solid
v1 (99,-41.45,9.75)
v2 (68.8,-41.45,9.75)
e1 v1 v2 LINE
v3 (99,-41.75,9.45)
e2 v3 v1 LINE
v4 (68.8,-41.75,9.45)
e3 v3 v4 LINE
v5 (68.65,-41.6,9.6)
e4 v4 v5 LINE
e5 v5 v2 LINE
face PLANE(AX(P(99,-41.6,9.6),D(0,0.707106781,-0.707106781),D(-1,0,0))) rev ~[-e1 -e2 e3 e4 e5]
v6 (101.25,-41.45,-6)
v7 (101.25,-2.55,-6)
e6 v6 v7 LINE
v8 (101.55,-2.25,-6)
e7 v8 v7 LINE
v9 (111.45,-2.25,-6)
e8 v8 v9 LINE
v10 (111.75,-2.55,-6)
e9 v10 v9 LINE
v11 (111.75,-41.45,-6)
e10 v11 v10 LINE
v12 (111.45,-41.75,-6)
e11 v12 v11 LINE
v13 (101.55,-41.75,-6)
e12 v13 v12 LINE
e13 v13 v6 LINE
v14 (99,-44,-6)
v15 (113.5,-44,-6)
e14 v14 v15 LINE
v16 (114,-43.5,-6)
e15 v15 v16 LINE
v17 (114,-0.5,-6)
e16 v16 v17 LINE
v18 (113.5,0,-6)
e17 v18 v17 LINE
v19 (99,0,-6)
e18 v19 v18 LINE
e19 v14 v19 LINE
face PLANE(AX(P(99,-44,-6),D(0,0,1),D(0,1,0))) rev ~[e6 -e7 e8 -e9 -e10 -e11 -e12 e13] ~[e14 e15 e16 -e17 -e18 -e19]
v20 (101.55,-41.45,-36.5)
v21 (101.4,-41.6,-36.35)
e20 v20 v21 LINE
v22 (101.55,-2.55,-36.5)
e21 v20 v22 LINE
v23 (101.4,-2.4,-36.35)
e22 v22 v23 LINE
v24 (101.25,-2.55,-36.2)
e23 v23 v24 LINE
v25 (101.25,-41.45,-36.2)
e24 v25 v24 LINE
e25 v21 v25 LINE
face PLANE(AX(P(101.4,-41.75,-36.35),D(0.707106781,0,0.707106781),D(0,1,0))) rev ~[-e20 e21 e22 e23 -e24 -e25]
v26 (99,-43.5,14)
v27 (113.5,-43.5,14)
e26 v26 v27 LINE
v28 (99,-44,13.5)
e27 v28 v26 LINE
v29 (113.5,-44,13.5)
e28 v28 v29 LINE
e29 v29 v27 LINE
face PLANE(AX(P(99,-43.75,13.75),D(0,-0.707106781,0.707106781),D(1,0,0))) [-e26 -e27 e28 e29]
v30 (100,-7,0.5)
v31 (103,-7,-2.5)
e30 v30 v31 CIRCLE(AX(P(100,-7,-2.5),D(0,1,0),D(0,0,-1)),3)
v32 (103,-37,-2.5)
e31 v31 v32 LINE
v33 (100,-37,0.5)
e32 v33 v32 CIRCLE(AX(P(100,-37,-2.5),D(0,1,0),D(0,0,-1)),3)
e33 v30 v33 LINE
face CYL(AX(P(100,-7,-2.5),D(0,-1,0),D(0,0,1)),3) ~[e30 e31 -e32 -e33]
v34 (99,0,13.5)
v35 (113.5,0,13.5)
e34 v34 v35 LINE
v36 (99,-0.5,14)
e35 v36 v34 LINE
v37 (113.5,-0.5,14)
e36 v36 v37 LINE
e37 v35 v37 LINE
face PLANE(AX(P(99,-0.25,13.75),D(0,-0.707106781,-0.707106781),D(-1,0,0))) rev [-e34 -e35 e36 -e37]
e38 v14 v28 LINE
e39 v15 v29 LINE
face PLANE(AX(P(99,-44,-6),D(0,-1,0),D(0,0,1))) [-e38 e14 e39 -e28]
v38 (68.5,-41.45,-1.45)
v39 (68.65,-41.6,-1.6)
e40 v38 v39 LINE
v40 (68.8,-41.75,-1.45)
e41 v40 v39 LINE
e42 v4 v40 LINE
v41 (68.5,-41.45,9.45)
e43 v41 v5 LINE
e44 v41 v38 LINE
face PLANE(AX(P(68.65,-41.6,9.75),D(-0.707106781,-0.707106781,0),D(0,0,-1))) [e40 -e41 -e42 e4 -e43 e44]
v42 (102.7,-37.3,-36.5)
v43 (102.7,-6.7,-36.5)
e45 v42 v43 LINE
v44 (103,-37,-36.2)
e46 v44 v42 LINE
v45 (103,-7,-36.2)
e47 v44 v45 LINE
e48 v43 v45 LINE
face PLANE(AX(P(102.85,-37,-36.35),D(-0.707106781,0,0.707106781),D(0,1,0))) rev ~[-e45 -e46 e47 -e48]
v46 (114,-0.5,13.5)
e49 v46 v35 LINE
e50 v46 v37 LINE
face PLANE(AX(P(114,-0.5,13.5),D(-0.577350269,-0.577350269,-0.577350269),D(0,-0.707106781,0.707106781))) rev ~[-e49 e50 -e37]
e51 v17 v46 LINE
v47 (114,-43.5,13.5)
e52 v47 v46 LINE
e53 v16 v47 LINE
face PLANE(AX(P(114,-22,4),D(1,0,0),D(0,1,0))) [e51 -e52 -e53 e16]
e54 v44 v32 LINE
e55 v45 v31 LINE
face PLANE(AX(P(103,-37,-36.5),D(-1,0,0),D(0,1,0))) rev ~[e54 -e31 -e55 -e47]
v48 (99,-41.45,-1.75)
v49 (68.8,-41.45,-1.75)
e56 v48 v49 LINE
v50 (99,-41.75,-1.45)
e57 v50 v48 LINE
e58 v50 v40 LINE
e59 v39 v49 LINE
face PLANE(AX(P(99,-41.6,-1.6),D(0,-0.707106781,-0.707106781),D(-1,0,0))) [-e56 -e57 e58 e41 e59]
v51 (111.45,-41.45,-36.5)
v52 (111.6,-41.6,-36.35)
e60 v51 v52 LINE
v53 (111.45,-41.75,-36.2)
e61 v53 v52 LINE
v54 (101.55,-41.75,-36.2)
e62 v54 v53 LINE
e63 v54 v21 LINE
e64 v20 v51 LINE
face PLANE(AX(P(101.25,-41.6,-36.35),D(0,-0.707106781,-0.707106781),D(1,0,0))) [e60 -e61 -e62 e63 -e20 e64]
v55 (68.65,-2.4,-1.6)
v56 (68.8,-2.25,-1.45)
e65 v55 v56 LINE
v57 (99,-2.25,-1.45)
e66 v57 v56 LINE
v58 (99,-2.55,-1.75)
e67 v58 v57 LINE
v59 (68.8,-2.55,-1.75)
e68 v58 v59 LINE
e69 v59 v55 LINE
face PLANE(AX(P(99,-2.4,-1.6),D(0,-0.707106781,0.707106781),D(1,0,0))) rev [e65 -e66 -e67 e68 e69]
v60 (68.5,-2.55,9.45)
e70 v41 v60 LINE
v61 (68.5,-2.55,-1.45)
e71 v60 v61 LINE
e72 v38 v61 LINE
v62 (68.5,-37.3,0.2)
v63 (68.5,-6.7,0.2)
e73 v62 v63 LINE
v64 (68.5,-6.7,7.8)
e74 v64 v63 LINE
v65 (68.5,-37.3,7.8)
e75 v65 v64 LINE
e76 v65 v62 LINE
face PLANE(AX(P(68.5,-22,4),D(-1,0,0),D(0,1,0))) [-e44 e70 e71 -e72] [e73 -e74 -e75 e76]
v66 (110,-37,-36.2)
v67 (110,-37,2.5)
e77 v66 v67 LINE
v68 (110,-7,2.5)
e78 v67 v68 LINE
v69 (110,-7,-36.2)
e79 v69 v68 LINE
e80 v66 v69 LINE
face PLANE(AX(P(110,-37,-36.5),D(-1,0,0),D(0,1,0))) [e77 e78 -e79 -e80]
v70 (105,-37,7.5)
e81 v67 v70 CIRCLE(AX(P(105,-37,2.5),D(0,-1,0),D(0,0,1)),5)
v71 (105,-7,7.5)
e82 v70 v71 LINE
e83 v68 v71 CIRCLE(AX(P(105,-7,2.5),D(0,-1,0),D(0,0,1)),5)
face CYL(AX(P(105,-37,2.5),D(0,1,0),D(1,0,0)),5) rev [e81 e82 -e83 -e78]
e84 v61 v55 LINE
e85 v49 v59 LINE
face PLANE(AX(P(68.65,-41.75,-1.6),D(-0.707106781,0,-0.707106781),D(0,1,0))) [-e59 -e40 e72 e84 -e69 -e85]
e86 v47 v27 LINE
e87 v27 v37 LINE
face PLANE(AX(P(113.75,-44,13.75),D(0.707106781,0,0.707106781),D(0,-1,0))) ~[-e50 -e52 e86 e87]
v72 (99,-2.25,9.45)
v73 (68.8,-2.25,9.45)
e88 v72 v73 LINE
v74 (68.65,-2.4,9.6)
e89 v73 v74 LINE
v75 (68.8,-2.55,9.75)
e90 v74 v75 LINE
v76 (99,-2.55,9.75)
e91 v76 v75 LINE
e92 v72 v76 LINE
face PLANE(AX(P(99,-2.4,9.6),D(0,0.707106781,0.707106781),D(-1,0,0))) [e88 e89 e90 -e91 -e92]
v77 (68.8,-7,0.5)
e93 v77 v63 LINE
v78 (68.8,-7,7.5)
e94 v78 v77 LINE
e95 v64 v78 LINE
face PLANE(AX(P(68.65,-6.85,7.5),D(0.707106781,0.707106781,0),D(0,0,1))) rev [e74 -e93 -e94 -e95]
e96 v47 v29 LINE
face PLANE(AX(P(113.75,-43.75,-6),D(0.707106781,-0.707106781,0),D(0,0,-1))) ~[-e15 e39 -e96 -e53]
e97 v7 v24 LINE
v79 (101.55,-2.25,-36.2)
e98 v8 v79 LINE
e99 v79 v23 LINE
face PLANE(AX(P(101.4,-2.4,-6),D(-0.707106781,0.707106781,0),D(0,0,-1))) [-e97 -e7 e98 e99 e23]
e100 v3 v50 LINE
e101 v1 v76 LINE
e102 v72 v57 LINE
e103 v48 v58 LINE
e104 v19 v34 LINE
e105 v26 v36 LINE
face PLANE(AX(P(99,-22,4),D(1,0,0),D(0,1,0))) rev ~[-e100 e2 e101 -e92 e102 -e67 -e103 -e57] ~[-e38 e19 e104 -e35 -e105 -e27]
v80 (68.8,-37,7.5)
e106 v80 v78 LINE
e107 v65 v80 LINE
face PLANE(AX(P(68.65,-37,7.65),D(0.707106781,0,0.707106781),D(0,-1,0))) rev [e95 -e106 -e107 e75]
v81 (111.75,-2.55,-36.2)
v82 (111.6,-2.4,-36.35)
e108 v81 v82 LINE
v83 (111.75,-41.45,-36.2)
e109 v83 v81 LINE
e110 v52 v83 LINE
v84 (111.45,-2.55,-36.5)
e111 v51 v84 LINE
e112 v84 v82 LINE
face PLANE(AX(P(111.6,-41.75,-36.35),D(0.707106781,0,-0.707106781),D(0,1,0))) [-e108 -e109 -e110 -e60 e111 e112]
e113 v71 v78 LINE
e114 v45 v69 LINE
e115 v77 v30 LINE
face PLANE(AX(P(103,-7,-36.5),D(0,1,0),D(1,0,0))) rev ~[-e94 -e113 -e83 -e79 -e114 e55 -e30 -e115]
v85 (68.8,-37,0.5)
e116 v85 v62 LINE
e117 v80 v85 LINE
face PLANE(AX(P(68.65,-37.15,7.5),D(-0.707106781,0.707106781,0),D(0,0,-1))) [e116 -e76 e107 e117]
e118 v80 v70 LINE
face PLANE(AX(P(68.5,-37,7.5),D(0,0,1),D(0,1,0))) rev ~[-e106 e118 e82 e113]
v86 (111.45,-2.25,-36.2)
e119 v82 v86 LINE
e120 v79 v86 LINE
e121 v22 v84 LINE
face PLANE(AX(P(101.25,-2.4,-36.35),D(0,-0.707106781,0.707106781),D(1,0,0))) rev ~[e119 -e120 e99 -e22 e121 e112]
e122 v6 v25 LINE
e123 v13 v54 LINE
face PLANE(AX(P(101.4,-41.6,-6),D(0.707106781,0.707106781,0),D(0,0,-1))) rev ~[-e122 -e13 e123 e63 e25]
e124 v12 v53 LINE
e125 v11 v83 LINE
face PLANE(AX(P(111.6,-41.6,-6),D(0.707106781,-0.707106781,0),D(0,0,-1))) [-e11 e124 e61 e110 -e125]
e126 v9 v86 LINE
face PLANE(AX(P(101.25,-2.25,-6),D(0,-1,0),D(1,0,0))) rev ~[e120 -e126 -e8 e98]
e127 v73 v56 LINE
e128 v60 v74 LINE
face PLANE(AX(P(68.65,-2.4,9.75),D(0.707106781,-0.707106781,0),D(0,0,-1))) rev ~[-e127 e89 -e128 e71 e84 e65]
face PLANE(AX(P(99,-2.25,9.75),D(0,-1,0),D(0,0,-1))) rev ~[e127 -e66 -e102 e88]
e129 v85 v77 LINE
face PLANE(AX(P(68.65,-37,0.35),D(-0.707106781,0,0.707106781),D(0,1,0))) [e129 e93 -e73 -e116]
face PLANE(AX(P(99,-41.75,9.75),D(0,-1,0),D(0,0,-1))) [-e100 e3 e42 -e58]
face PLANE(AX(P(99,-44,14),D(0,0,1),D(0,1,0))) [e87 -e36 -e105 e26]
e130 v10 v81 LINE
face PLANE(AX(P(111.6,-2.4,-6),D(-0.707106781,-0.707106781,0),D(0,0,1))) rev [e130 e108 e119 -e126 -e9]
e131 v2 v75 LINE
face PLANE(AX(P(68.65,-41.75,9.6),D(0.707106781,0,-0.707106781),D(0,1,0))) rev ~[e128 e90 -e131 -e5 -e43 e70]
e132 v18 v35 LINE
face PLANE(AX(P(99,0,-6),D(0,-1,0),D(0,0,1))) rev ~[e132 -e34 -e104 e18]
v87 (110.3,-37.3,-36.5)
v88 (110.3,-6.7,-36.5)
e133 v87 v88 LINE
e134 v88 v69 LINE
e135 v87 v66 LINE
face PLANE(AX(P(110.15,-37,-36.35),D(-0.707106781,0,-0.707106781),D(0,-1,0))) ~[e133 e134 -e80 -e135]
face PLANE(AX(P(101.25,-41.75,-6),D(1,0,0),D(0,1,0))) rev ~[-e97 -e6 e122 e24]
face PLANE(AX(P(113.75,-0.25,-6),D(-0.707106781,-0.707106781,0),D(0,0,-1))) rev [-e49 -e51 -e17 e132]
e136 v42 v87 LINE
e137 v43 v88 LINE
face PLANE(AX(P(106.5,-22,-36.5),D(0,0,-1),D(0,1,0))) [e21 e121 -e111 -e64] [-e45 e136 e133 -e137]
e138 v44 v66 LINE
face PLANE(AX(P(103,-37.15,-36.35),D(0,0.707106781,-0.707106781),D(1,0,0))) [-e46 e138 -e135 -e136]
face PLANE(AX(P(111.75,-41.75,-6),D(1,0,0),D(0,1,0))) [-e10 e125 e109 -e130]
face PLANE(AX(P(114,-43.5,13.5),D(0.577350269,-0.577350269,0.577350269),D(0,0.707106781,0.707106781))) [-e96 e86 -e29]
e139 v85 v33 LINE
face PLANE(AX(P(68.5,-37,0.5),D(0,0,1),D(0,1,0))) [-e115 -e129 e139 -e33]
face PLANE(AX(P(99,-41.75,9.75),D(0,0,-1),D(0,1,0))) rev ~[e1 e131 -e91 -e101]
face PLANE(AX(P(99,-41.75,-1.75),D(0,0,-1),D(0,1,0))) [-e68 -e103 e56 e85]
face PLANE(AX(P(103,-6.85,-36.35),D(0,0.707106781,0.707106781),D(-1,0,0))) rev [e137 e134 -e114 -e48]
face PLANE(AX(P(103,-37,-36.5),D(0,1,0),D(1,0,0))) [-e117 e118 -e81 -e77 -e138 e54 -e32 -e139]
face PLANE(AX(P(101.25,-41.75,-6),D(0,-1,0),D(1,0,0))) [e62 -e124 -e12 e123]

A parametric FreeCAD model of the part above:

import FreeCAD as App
import Part
import Sketcher


def edges_at(feature, points):
    """Names of the edges that pass closest to the given points."""
    edges = feature.Shape.Edges
    near = lambda p: min(range(len(edges)), key=lambda i: edges[i].distToShape(Part.Vertex(*p))[0])
    return sorted({f"Edge{near(p) + 1}" for p in points})

doc = App.newDocument("Part")
params = doc.addObject("Spreadsheet::Sheet", "Params")
for row, (alias, value) in enumerate([
    ("sketch1_width", "44 mm"),
    ("sketch1_height", "20 mm"),
    ("pad1_length", "15 mm"),
    ("sketch2_width", "39.5 mm"),
    ("sketch2_height", "11.5 mm"),
    ("pad2_length", "30.5 mm"),
    ("sketch3_width", "30 mm"),
    ("sketch3_height", "7 mm"),
    ("pocket1_length", "41.5 mm"),
    ("sketch4_width", "10.5 mm"),
    ("sketch4_height", "39.5 mm"),
    ("pad3_length", "30.5 mm"),
    ("sketch5_width", "7 mm"),
    ("sketch5_height", "30 mm"),
    ("pocket2_length", "44 mm"),
    ("fillet_radius", "5 mm"),
    ("fillet2_radius", "3 mm"),
    ("chamfer_size", "0.3 mm"),
    ("chamfer2_size", "0.5 mm"),
    ("chamfer3_size", "0.3 mm"),
], start=1):
    params.set(f"A{row}", alias)
    params.set(f"B{row}", "=" + value)
    params.setAlias(f"B{row}", alias)

body = doc.addObject("PartDesign::Body", "Body")

sketch1 = doc.addObject("Sketcher::SketchObject", "Sketch")
body.addObject(sketch1)
sketch1.AttachmentSupport = (doc.YZ_Plane, [""])
sketch1.MapMode = "FlatFace"
sketch1.addGeometry([
    Part.LineSegment(App.Vector(-22, 10, 0), App.Vector(-22, -10, 0)),
    Part.LineSegment(App.Vector(-22, -10, 0), App.Vector(22, -10, 0)),
    Part.LineSegment(App.Vector(22, -10, 0), App.Vector(22, 10, 0)),
    Part.LineSegment(App.Vector(22, 10, 0), App.Vector(-22, 10, 0)),
], False)
sketch1.addConstraint([
    Sketcher.Constraint("Coincident", 0, 2, 1, 1),
    Sketcher.Constraint("Coincident", 1, 2, 2, 1),
    Sketcher.Constraint("Coincident", 2, 2, 3, 1),
    Sketcher.Constraint("Coincident", 3, 2, 0, 1),
    Sketcher.Constraint("Vertical", 0),
    Sketcher.Constraint("Horizontal", 1),
    Sketcher.Constraint("Vertical", 2),
    Sketcher.Constraint("Horizontal", 3),
    Sketcher.Constraint("Symmetric", 0, 2, 2, 2, -1, 1),
    Sketcher.Constraint("DistanceX", 1, 1, 1, 2, 44.0),
    Sketcher.Constraint("DistanceY", 0, 2, 0, 1, 20.0),
])
sketch1.setExpression("Constraints[9]", "Params.sketch1_width")
sketch1.setExpression("Constraints[10]", "Params.sketch1_height")
pad1 = doc.addObject("PartDesign::Pad", "Pad")
body.addObject(pad1)
pad1.Profile = sketch1
pad1.setExpression("Length", "Params.pad1_length")

sketch2 = doc.addObject("Sketcher::SketchObject", "Sketch001")
body.addObject(sketch2)
sketch2.AttachmentSupport = (doc.YZ_Plane, [""])
sketch2.MapMode = "FlatFace"
sketch2.addGeometry([
    Part.LineSegment(App.Vector(-19.75, -5.75, 0), App.Vector(-19.75, 5.75, 0)),
    Part.LineSegment(App.Vector(-19.75, 5.75, 0), App.Vector(19.75, 5.75, 0)),
    Part.LineSegment(App.Vector(19.75, 5.75, 0), App.Vector(19.75, -5.75, 0)),
    Part.LineSegment(App.Vector(19.75, -5.75, 0), App.Vector(-19.75, -5.75, 0)),
], False)
sketch2.addConstraint([
    Sketcher.Constraint("Coincident", 0, 2, 1, 1),
    Sketcher.Constraint("Coincident", 1, 2, 2, 1),
    Sketcher.Constraint("Coincident", 2, 2, 3, 1),
    Sketcher.Constraint("Coincident", 3, 2, 0, 1),
    Sketcher.Constraint("Vertical", 0),
    Sketcher.Constraint("Horizontal", 1),
    Sketcher.Constraint("Vertical", 2),
    Sketcher.Constraint("Horizontal", 3),
    Sketcher.Constraint("Symmetric", 0, 2, 2, 2, -1, 1),
    Sketcher.Constraint("DistanceX", 1, 1, 1, 2, 39.5),
    Sketcher.Constraint("DistanceY", 0, 1, 0, 2, 11.5),
])
sketch2.setExpression("Constraints[9]", "Params.sketch2_width")
sketch2.setExpression("Constraints[10]", "Params.sketch2_height")
pad2 = doc.addObject("PartDesign::Pad", "Pad001")
body.addObject(pad2)
pad2.Profile = sketch2
pad2.setExpression("Length", "Params.pad2_length")
pad2.Reversed = True

sketch3 = doc.addObject("Sketcher::SketchObject", "Sketch002")
body.addObject(sketch3)
sketch3.AttachmentSupport = (doc.YZ_Plane, [""])
sketch3.MapMode = "FlatFace"
sketch3.AttachmentOffset = App.Placement(App.Vector(0, 0, -30.5), App.Rotation())
sketch3.addGeometry([
    Part.LineSegment(App.Vector(-15, -3.5, 0), App.Vector(-15, 3.5, 0)),
    Part.LineSegment(App.Vector(-15, 3.5, 0), App.Vector(15, 3.5, 0)),
    Part.LineSegment(App.Vector(15, 3.5, 0), App.Vector(15, -3.5, 0)),
    Part.LineSegment(App.Vector(15, -3.5, 0), App.Vector(-15, -3.5, 0)),
], False)
sketch3.addConstraint([
    Sketcher.Constraint("Coincident", 0, 2, 1, 1),
    Sketcher.Constraint("Coincident", 1, 2, 2, 1),
    Sketcher.Constraint("Coincident", 2, 2, 3, 1),
    Sketcher.Constraint("Coincident", 3, 2, 0, 1),
    Sketcher.Constraint("Vertical", 0),
    Sketcher.Constraint("Horizontal", 1),
    Sketcher.Constraint("Vertical", 2),
    Sketcher.Constraint("Horizontal", 3),
    Sketcher.Constraint("Symmetric", 0, 2, 2, 2, -1, 1),
    Sketcher.Constraint("DistanceX", 1, 1, 1, 2, 30.0),
    Sketcher.Constraint("DistanceY", 0, 1, 0, 2, 7.0),
])
sketch3.setExpression("Constraints[9]", "Params.sketch3_width")
sketch3.setExpression("Constraints[10]", "Params.sketch3_height")
pocket1 = doc.addObject("PartDesign::Pocket", "Pocket")
body.addObject(pocket1)
pocket1.Profile = sketch3
pocket1.setExpression("Length", "Params.pocket1_length")
pocket1.Reversed = True

sketch4 = doc.addObject("Sketcher::SketchObject", "Sketch003")
body.addObject(sketch4)
sketch4.AttachmentSupport = (doc.XY_Plane, [""])
sketch4.MapMode = "FlatFace"
sketch4.AttachmentOffset = App.Placement(App.Vector(0, 0, -10), App.Rotation())
sketch4.addGeometry([
    Part.LineSegment(App.Vector(12.75, -19.75, 0), App.Vector(2.25, -19.75, 0)),
    Part.LineSegment(App.Vector(2.25, -19.75, 0), App.Vector(2.25, 19.75, 0)),
    Part.LineSegment(App.Vector(2.25, 19.75, 0), App.Vector(12.75, 19.75, 0)),
    Part.LineSegment(App.Vector(12.75, 19.75, 0), App.Vector(12.75, -19.75, 0)),
], False)
sketch4.addConstraint([
    Sketcher.Constraint("Coincident", 0, 2, 1, 1),
    Sketcher.Constraint("Coincident", 1, 2, 2, 1),
    Sketcher.Constraint("Coincident", 2, 2, 3, 1),
    Sketcher.Constraint("Coincident", 3, 2, 0, 1),
    Sketcher.Constraint("Horizontal", 0),
    Sketcher.Constraint("Vertical", 1),
    Sketcher.Constraint("Horizontal", 2),
    Sketcher.Constraint("Vertical", 3),
    Sketcher.Constraint("DistanceX", 0, 2, 0, 1, 10.5),
    Sketcher.Constraint("DistanceY", 1, 1, 1, 2, 39.5),
    Sketcher.Constraint("DistanceX", -1, 1, 0, 2, 2.25),
    Sketcher.Constraint("DistanceY", 0, 2, -1, 1, 19.75),
])
sketch4.setExpression("Constraints[8]", "Params.sketch4_width")
sketch4.setExpression("Constraints[9]", "Params.sketch4_height")
pad3 = doc.addObject("PartDesign::Pad", "Pad002")
body.addObject(pad3)
pad3.Profile = sketch4
pad3.setExpression("Length", "Params.pad3_length")
pad3.Reversed = True

sketch5 = doc.addObject("Sketcher::SketchObject", "Sketch004")
body.addObject(sketch5)
sketch5.AttachmentSupport = (doc.XY_Plane, [""])
sketch5.MapMode = "FlatFace"
sketch5.AttachmentOffset = App.Placement(App.Vector(0, 0, -40.5), App.Rotation())
sketch5.addGeometry([
    Part.LineSegment(App.Vector(11, -15, 0), App.Vector(4, -15, 0)),
    Part.LineSegment(App.Vector(4, -15, 0), App.Vector(4, 15, 0)),
    Part.LineSegment(App.Vector(4, 15, 0), App.Vector(11, 15, 0)),
    Part.LineSegment(App.Vector(11, 15, 0), App.Vector(11, -15, 0)),
], False)
sketch5.addConstraint([
    Sketcher.Constraint("Coincident", 0, 2, 1, 1),
    Sketcher.Constraint("Coincident", 1, 2, 2, 1),
    Sketcher.Constraint("Coincident", 2, 2, 3, 1),
    Sketcher.Constraint("Coincident", 3, 2, 0, 1),
    Sketcher.Constraint("Horizontal", 0),
    Sketcher.Constraint("Vertical", 1),
    Sketcher.Constraint("Horizontal", 2),
    Sketcher.Constraint("Vertical", 3),
    Sketcher.Constraint("DistanceX", 0, 2, 0, 1, 7.0),
    Sketcher.Constraint("DistanceY", 1, 1, 1, 2, 30.0),
    Sketcher.Constraint("DistanceX", -1, 1, 0, 2, 4.0),
    Sketcher.Constraint("DistanceY", 0, 2, -1, 1, 15.0),
])
sketch5.setExpression("Constraints[8]", "Params.sketch5_width")
sketch5.setExpression("Constraints[9]", "Params.sketch5_height")
pocket2 = doc.addObject("PartDesign::Pocket", "Pocket001")
body.addObject(pocket2)
pocket2.Profile = sketch5
pocket2.setExpression("Length", "Params.pocket2_length")
pocket2.Reversed = True
doc.recompute()

fillet = doc.addObject("PartDesign::Fillet", "Fillet")
body.addObject(fillet)
fillet.Base = (pocket2, edges_at(pocket2, [(11, 0, 3.5)]))
fillet.setExpression("Radius", "Params.fillet_radius")
doc.recompute()

fillet2 = doc.addObject("PartDesign::Fillet", "Fillet001")
body.addObject(fillet2)
fillet2.Base = (fillet, edges_at(fillet, [(4, 0, -3.5)]))
fillet2.setExpression("Radius", "Params.fillet2_radius")
doc.recompute()

chamfer = doc.addObject("PartDesign::Chamfer", "Chamfer")
body.addObject(chamfer)
chamfer.Base = (fillet2, edges_at(fillet2, [
    (-30.5, 0, -5.75),
    (-30.5, -19.75, 0),
    (-30.5, 19.75, 0),
    (-30.5, 0, 5.75),
    (-30.5, 0, -3.5),
    (-30.5, 15, 0),
    (-30.5, 0, 3.5),
    (-30.5, -15, 0),
    (12.75, 0, -40.5),
    (7.5, -19.75, -40.5),
    (7.5, 19.75, -40.5),
    (2.25, 0, -40.5),
    (11, 0, -40.5),
    (7.5, 15, -40.5),
    (4, 0, -40.5),
    (7.5, -15, -40.5),
]))
chamfer.setExpression("Size", "Params.chamfer_size")
doc.recompute()

chamfer2 = doc.addObject("PartDesign::Chamfer", "Chamfer001")
body.addObject(chamfer2)
chamfer2.Base = (chamfer, edges_at(chamfer, [
    (7.5, -22, 10),
    (15, -22, 0),
    (7.5, 22, 10),
    (15, 22, 0),
    (15, 0, 10),
]))
chamfer2.setExpression("Size", "Params.chamfer2_size")
doc.recompute()

chamfer3 = doc.addObject("PartDesign::Chamfer", "Chamfer002")
body.addObject(chamfer3)
chamfer3.Base = (chamfer2, edges_at(chamfer2, [
    (-15.1, -19.75, 5.75),
    (-15.1, -19.75, -5.75),
    (-15.1, 19.75, 5.75),
    (-15.1, 19.75, -5.75),
    (2.25, 19.75, -25.1),
    (2.25, -19.75, -25.1),
    (12.75, 19.75, -25.1),
    (12.75, -19.75, -25.1),
]))
chamfer3.setExpression("Size", "Params.chamfer3_size")
body2 = doc.addObject("PartDesign::Body", "Body001")
doc.recompute()

body.Placement = App.Placement(App.Vector(99, -22, 4), App.Rotation(App.Vector(0, 0, 1), 0))
boolean = doc.addObject("PartDesign::Boolean", "Boolean")
body2.addObject(boolean)
boolean.Type = "Fuse"
boolean.addObjects([body])

doc.recompute()
